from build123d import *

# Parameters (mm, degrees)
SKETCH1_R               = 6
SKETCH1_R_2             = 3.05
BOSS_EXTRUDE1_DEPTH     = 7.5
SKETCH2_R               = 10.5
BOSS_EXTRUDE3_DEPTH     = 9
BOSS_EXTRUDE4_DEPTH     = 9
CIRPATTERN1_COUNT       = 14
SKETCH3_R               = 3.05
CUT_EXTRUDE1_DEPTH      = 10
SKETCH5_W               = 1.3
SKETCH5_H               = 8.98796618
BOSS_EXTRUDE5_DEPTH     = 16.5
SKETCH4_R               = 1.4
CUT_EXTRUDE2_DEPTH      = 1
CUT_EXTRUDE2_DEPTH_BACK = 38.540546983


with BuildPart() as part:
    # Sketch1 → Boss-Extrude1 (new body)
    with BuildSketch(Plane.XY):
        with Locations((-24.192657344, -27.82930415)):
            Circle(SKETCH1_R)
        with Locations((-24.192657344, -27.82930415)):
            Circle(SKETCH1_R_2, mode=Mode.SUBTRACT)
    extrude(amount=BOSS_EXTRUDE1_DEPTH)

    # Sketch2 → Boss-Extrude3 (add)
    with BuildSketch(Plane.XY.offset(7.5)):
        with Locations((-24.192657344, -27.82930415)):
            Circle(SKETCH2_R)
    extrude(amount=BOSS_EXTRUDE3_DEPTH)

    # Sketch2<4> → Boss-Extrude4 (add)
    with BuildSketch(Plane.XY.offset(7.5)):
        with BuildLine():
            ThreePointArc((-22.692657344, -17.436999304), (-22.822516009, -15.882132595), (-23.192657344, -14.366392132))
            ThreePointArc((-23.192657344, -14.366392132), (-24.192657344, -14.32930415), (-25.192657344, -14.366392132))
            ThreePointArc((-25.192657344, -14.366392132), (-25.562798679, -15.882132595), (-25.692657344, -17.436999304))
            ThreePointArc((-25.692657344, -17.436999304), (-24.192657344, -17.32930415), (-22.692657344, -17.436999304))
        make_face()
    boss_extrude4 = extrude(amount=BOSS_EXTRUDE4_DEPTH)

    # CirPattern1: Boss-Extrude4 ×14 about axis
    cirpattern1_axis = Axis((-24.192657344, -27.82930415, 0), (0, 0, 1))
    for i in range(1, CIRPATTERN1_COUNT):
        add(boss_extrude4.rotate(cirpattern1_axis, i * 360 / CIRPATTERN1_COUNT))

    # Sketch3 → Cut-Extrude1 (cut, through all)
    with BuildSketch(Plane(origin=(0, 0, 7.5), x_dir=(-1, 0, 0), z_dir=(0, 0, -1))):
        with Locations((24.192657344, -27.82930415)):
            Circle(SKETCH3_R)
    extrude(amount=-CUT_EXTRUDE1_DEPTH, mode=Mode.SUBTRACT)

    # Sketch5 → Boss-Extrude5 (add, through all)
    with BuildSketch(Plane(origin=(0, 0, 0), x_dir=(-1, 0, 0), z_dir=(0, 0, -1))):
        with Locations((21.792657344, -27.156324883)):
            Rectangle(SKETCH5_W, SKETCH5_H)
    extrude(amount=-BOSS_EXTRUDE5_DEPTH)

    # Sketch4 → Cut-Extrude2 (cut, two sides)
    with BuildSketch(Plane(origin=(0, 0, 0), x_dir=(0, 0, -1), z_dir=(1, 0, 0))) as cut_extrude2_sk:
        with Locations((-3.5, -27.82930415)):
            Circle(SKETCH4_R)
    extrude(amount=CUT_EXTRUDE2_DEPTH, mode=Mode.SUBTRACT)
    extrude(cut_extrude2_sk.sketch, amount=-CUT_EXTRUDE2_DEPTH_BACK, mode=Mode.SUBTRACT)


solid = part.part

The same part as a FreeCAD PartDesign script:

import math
import FreeCAD as App
import Part
import Sketcher

doc = App.newDocument("Part")
body = doc.addObject("PartDesign::Body", "Body")

sketch1 = body.newObject("Sketcher::SketchObject", "Sketch")
sketch1.AttachmentSupport = (doc.getObject("XY_Plane"), [""])
sketch1.MapMode = "FlatFace"
sketch1.addGeometry([
    Part.Circle(App.Vector(-24.192657, -27.829304, 0), App.Vector(0, 0, 1), 6),
    Part.Circle(App.Vector(-24.192657, -27.829304, 0), App.Vector(0, 0, 1), 3.05),
], False)
sketch1.addConstraint([
    Sketcher.Constraint("Coincident", 1, 3, 0, 3),
    Sketcher.Constraint("Diameter", 0, 12.0),
    Sketcher.Constraint("Diameter", 1, 6.1),
    Sketcher.Constraint("DistanceX", 0, 3, -1, 1, 24.192657),
    Sketcher.Constraint("DistanceY", 0, 3, -1, 1, 27.829304),
])
pad1 = body.newObject("PartDesign::Pad", "Pad")
pad1.Profile = sketch1
pad1.Length = 7.5

sketch2 = body.newObject("Sketcher::SketchObject", "Sketch001")
sketch2.AttachmentSupport = (doc.getObject("XY_Plane"), [""])
sketch2.MapMode = "FlatFace"
sketch2.AttachmentOffset = App.Placement(App.Vector(0, 0, 7.5), App.Rotation())
sketch2.addGeometry(Part.Circle(App.Vector(-24.192657, -27.829304, 0), App.Vector(0, 0, 1), 10.5), False)
sketch2.addConstraint([
    Sketcher.Constraint("Diameter", 0, 21.0),
    Sketcher.Constraint("DistanceX", 0, 3, -1, 1, 24.192657),
    Sketcher.Constraint("DistanceY", 0, 3, -1, 1, 27.829304),
])
pad2 = body.newObject("PartDesign::Pad", "Pad001")
pad2.Profile = sketch2
pad2.Length = 9

sketch3 = body.newObject("Sketcher::SketchObject", "Sketch002")
sketch3.AttachmentSupport = (doc.getObject("XY_Plane"), [""])
sketch3.MapMode = "FlatFace"
sketch3.AttachmentOffset = App.Placement(App.Vector(0, 0, 7.5), App.Rotation())
sketch3.addGeometry([
    Part.ArcOfCircle(Part.Circle(App.Vector(-32.692521, -17.489307, 0), App.Vector(0, 0, 1), 10), math.radians(0.299704), math.radians(18.197382)),
    Part.ArcOfCircle(Part.Circle(App.Vector(-24.192657, -27.829304, 0), App.Vector(0, 0, 1), 13.5), math.radians(85.751977), math.radians(94.248023)),
    Part.ArcOfCircle(Part.Circle(App.Vector(-15.692794, -17.489307, 0), App.Vector(0, 0, 1), 10), math.radians(161.802618), math.radians(179.700296)),
    Part.ArcOfCircle(Part.Circle(App.Vector(-24.192657, -27.829304, 0), App.Vector(0, 0, 1), 10.5), math.radians(81.786789), math.radians(98.213211)),
], False)
sketch3.addConstraint([
    Sketcher.Constraint("Coincident", 0, 2, 1, 1),
    Sketcher.Constraint("Coincident", 1, 2, 2, 1),
    Sketcher.Constraint("Coincident", 2, 2, 3, 2),
    Sketcher.Constraint("Coincident", 3, 1, 0, 1),
    Sketcher.Constraint("Coincident", 3, 3, 1, 3),
    Sketcher.Constraint("Equal", 0, 2),
    Sketcher.Constraint("Horizontal", 0, 3, 2, 3),
    Sketcher.Constraint("Horizontal", 0, 2, 1, 2),
    Sketcher.Constraint("Radius", 0, 10.0),
    Sketcher.Constraint("Radius", 1, 13.5),
    Sketcher.Constraint("Radius", 3, 10.5),
    Sketcher.Constraint("DistanceX", 3, 3, 0, 2, 1.0),
    Sketcher.Constraint("DistanceX", 2, 2, 3, 1, 3.0),
    Sketcher.Constraint("DistanceY", 2, 2, -1, 1, 17.436999),
    Sketcher.Constraint("DistanceX", 0, 3, -1, 1, 32.692521),
])
pad3 = body.newObject("PartDesign::Pad", "Pad002")
pad3.Profile = sketch3
pad3.Length = 9
doc.recompute()

datumline = body.newObject("PartDesign::Line", "DatumLine")
datumline.Placement = App.Placement(App.Vector(-24.192657, -27.829304, 0), App.Rotation(App.Vector(0, 0, 1), App.Vector(0, 0, 1)))
polarpattern = body.newObject("PartDesign::PolarPattern", "PolarPattern")
polarpattern.Originals = [pad3]
polarpattern.Axis = (datumline, [""])
polarpattern.Angle = 360
polarpattern.Occurrences = 14
body.Tip = polarpattern

sketch4 = body.newObject("Sketcher::SketchObject", "Sketch003")
sketch4.AttachmentSupport = (doc.getObject("XY_Plane"), [""])
sketch4.MapMode = "FlatFace"
sketch4.AttachmentOffset = App.Placement(App.Vector(0, 0, 7.5), App.Rotation())
sketch4.addGeometry(Part.Circle(App.Vector(-24.192657, -27.829304, 0), App.Vector(0, 0, 1), 3.05), False)
sketch4.addConstraint([
    Sketcher.Constraint("Diameter", 0, 6.1),
    Sketcher.Constraint("DistanceX", 0, 3, -1, 1, 24.192657),
    Sketcher.Constraint("DistanceY", 0, 3, -1, 1, 27.829304),
])
pocket1 = body.newObject("PartDesign::Pocket", "Pocket")
pocket1.Profile = sketch4
pocket1.Type = "ThroughAll"
pocket1.Reversed = True

sketch5 = body.newObject("Sketcher::SketchObject", "Sketch004")
sketch5.AttachmentSupport = (doc.getObject("XY_Plane"), [""])
sketch5.MapMode = "FlatFace"
sketch5.addGeometry([
    Part.LineSegment(App.Vector(-21.142657, -22.662342, 0), App.Vector(-21.142657, -31.650308, 0)),
    Part.LineSegment(App.Vector(-21.142657, -31.650308, 0), App.Vector(-22.442657, -31.650308, 0)),
    Part.LineSegment(App.Vector(-22.442657, -31.650308, 0), App.Vector(-22.442657, -22.662342, 0)),
    Part.LineSegment(App.Vector(-22.442657, -22.662342, 0), App.Vector(-21.142657, -22.662342, 0)),
], False)
sketch5.addConstraint([
    Sketcher.Constraint("Coincident", 0, 2, 1, 1),
    Sketcher.Constraint("Coincident", 1, 2, 2, 1),
    Sketcher.Constraint("Coincident", 2, 2, 3, 1),
    Sketcher.Constraint("Coincident", 3, 2, 0, 1),
    Sketcher.Constraint("Vertical", 0),
    Sketcher.Constraint("Horizontal", 1),
    Sketcher.Constraint("Vertical", 2),
    Sketcher.Constraint("Horizontal", 3),
    Sketcher.Constraint("DistanceX", 1, 2, 1, 1, 1.3),
    Sketcher.Constraint("DistanceY", 0, 2, 0, 1, 8.987966),
    Sketcher.Constraint("DistanceY", 2, 2, -1, 1, 22.662342),
    Sketcher.Constraint("DistanceX", 0, 2, -1, 1, 21.142657),
])
pad4 = body.newObject("PartDesign::Pad", "Pad003")
pad4.Profile = sketch5
pad4.Length = 16.5

sketch6 = body.newObject("Sketcher::SketchObject", "Sketch005")
sketch6.AttachmentSupport = (doc.getObject("YZ_Plane"), [""])
sketch6.MapMode = "FlatFace"
sketch6.addGeometry(Part.Circle(App.Vector(-27.829304, 3.5, 0), App.Vector(0, 0, 1), 1.4), False)
sketch6.addConstraint([
    Sketcher.Constraint("Diameter", 0, 2.8),
    Sketcher.Constraint("DistanceY", -1, 1, 0, 3, 3.5),
    Sketcher.Constraint("DistanceX", 0, 3, -1, 1, 27.829304),
])
pocket2 = body.newObject("PartDesign::Pocket", "Pocket001")
pocket2.Profile = sketch6
pocket2.Type = "ThroughAll"
pocket2.Midplane = True

doc.recompute()
